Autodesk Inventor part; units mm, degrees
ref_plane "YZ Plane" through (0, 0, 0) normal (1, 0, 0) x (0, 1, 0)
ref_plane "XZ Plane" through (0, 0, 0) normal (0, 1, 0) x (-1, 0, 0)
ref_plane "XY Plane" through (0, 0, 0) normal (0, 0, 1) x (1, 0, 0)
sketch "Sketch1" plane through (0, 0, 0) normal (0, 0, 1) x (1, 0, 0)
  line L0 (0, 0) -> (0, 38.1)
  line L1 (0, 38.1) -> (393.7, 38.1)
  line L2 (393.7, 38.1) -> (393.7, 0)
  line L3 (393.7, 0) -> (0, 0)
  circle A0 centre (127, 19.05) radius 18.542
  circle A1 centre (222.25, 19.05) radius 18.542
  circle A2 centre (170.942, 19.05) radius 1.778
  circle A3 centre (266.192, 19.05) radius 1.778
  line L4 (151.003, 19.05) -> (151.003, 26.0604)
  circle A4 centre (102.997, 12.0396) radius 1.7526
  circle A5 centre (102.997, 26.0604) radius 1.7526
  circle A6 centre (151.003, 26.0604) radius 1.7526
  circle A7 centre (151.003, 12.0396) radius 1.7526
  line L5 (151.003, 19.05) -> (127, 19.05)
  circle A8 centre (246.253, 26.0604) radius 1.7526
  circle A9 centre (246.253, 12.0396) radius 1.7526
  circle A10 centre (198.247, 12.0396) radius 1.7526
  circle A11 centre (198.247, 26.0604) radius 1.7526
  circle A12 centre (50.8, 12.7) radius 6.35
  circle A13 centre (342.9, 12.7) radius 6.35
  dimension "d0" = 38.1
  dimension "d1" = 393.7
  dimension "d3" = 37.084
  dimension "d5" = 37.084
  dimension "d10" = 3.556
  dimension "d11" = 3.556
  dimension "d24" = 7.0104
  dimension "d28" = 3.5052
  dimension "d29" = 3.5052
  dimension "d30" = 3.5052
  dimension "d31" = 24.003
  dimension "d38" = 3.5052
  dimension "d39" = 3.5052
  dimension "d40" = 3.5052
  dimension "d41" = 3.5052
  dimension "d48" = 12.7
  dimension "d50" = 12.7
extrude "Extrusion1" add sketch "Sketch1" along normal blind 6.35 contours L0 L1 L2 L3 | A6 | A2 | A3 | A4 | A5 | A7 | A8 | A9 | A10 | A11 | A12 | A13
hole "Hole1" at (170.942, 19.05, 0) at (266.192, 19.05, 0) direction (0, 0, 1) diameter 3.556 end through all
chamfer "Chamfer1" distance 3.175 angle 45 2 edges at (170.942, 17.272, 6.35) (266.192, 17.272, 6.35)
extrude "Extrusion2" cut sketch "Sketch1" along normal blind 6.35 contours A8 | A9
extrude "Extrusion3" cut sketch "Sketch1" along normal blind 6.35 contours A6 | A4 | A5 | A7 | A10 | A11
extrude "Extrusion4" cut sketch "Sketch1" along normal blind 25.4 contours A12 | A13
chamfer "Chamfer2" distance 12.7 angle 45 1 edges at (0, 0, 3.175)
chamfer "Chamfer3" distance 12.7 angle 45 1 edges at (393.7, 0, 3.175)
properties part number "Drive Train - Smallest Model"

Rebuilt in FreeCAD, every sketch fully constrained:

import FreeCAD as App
import Part
import Sketcher
from FreeCAD import Vector
Q = App.Units.Quantity


def edges_at(feature, points):
    """Names of the edges that pass closest to the given points."""
    edges = feature.Shape.Edges
    near = lambda p: min(range(len(edges)), key=lambda i: edges[i].distToShape(Part.Vertex(*p))[0])
    return sorted({f"Edge{near(p) + 1}" for p in points})


def add_polygon(sketch, points):
    """Adds a closed chain of lines whose ends are joined by coincident constraints."""
    first, n = sketch.GeometryCount, len(points)
    for a, b in zip(points, points[1:] + points[:1]):
        sketch.addGeometry(Part.LineSegment(App.Vector(*a, 0), App.Vector(*b, 0)), False)
    for i in range(n):
        sketch.addConstraint(Sketcher.Constraint("Coincident", first + i, 2, first + (i + 1) % n, 1))

doc = App.newDocument("Part")
body = doc.addObject("PartDesign::Body", "Body")

# Sketch on XY plane
sketch1 = body.newObject("Sketcher::SketchObject", "Sketch")
sketch1.AttachmentSupport = (doc.getObject("XY_Plane"), [""])
sketch1.MapMode = "FlatFace"
add_polygon(sketch1, [(0, 38), (0, 0), (394, 0), (394, 38)])  # lines 0-3
sketch1.addGeometry(Part.Circle(Vector(127, 19, 0), Vector(0, 0, 1), 19), False)  # 4
sketch1.addGeometry(Part.Circle(Vector(222, 19, 0), Vector(0, 0, 1), 19), False)  # 5
sketch1.addConstraint(Sketcher.Constraint("Vertical", 0))
sketch1.addConstraint(Sketcher.Constraint("Horizontal", 1))
sketch1.addConstraint(Sketcher.Constraint("Vertical", 2))
sketch1.addConstraint(Sketcher.Constraint("Horizontal", 3))
sketch1.addConstraint(Sketcher.Constraint("Coincident", 0, 2, -1, 1))
sketch1.addConstraint(Sketcher.Constraint("Equal", 4, 5))
sketch1.addConstraint(Sketcher.Constraint("Horizontal", 4, 3, 5, 3))
sketch1.addConstraint(Sketcher.Constraint("Diameter", 4, Q("1.46 in")))
sketch1.addConstraint(Sketcher.Constraint("DistanceX", 1, 1, 1, 2, Q("15.5 in")))
sketch1.addConstraint(Sketcher.Constraint("DistanceY", 0, 2, 0, 1, Q("1.5 in")))
sketch1.addConstraint(Sketcher.Constraint("DistanceX", -1, 1, 4, 3, Q("5 in")))
sketch1.addConstraint(Sketcher.Constraint("DistanceY", -1, 1, 4, 3, Q("0.75 in")))
sketch1.addConstraint(Sketcher.Constraint("DistanceX", -1, 1, 5, 3, Q("8.75 in")))
pad1 = body.newObject("PartDesign::Pad", "Pad")
pad1.Profile = sketch1
pad1.Length = Q("0.25 in")

# Sketch on XY plane
sketch2 = body.newObject("Sketcher::SketchObject", "Sketch001")
sketch2.AttachmentSupport = (doc.getObject("XY_Plane"), [""])
sketch2.MapMode = "FlatFace"
sketch2.addGeometry(Part.Circle(Vector(170.9, 19.1, 0), Vector(0, 0, 1), 1.8), False)
sketch2.addGeometry(Part.Circle(Vector(266.2, 19.1, 0), Vector(0, 0, 1), 1.8), False)
sketch2.addConstraint(Sketcher.Constraint("Equal", 0, 1))
sketch2.addConstraint(Sketcher.Constraint("Horizontal", 0, 3, 1, 3))
sketch2.addConstraint(Sketcher.Constraint("Diameter", 0, Q("0.14 in")))
sketch2.addConstraint(Sketcher.Constraint("DistanceX", -1, 1, 0, 3, Q("6.73 in")))
sketch2.addConstraint(Sketcher.Constraint("DistanceY", -1, 1, 0, 3, Q("0.75 in")))
sketch2.addConstraint(Sketcher.Constraint("DistanceX", -1, 1, 1, 3, Q("10.48 in")))
doc.recompute()
hole = body.newObject("PartDesign::Hole", "Hole")
hole.Profile = sketch2
hole.ThreadType = "None"
hole.Diameter = Q("0.14 in")
hole.DepthType = "ThroughAll"
hole.Reversed = True
doc.recompute()

chamfer = body.newObject("PartDesign::Chamfer", "Chamfer")
chamfer.Base = (hole, edges_at(hole, [(170.942, 17.272, 6.35), (266.192, 17.272, 6.35)]))
chamfer.Size = Q("0.125 in")

# Sketch on XY plane
sketch3 = body.newObject("Sketcher::SketchObject", "Sketch002")
sketch3.AttachmentSupport = (doc.getObject("XY_Plane"), [""])
sketch3.MapMode = "FlatFace"
sketch3.addGeometry(Part.Circle(Vector(246.3, 26.1, 0), Vector(0, 0, 1), 1.8), False)
sketch3.addGeometry(Part.Circle(Vector(246.3, 12, 0), Vector(0, 0, 1), 1.8), False)
sketch3.addConstraint(Sketcher.Constraint("Equal", 0, 1))
sketch3.addConstraint(Sketcher.Constraint("Vertical", 0, 3, 1, 3))
sketch3.addConstraint(Sketcher.Constraint("Diameter", 0, Q("0.138 in")))
sketch3.addConstraint(Sketcher.Constraint("DistanceX", -1, 1, 0, 3, Q("9.695 in")))
sketch3.addConstraint(Sketcher.Constraint("DistanceY", -1, 1, 0, 3, Q("1.026 in")))
sketch3.addConstraint(Sketcher.Constraint("DistanceY", -1, 1, 1, 3, Q("0.474 in")))
pocket1 = body.newObject("PartDesign::Pocket", "Pocket")
pocket1.Profile = sketch3
pocket1.Length = Q("0.25 in")
pocket1.Reversed = True

# Sketch on XY plane
sketch4 = body.newObject("Sketcher::SketchObject", "Sketch003")
sketch4.AttachmentSupport = (doc.getObject("XY_Plane"), [""])
sketch4.MapMode = "FlatFace"
sketch4.addGeometry(Part.Circle(Vector(151, 26.1, 0), Vector(0, 0, 1), 1.8), False)
sketch4.addGeometry(Part.Circle(Vector(103, 12, 0), Vector(0, 0, 1), 1.8), False)
sketch4.addGeometry(Part.Circle(Vector(103, 26.1, 0), Vector(0, 0, 1), 1.8), False)
sketch4.addGeometry(Part.Circle(Vector(151, 12, 0), Vector(0, 0, 1), 1.8), False)
sketch4.addGeometry(Part.Circle(Vector(198.2, 12, 0), Vector(0, 0, 1), 1.8), False)
sketch4.addGeometry(Part.Circle(Vector(198.2, 26.1, 0), Vector(0, 0, 1), 1.8), False)
sketch4.addConstraint(Sketcher.Constraint("Equal", 0, 1))
sketch4.addConstraint(Sketcher.Constraint("Equal", 1, 2))
sketch4.addConstraint(Sketcher.Constraint("Equal", 2, 3))
sketch4.addConstraint(Sketcher.Constraint("Equal", 3, 4))
sketch4.addConstraint(Sketcher.Constraint("Equal", 4, 5))
sketch4.addConstraint(Sketcher.Constraint("Horizontal", 0, 3, 2, 3))
sketch4.addConstraint(Sketcher.Constraint("Horizontal", 1, 3, 3, 3))
sketch4.addConstraint(Sketcher.Constraint("Horizontal", 3, 3, 4, 3))
sketch4.addConstraint(Sketcher.Constraint("Horizontal", 2, 3, 5, 3))
sketch4.addConstraint(Sketcher.Constraint("Vertical", 1, 3, 2, 3))
sketch4.addConstraint(Sketcher.Constraint("Vertical", 0, 3, 3, 3))
sketch4.addConstraint(Sketcher.Constraint("Vertical", 4, 3, 5, 3))
sketch4.addConstraint(Sketcher.Constraint("Diameter", 0, Q("0.138 in")))
sketch4.addConstraint(Sketcher.Constraint("DistanceX", 1, 3, 0, 3, Q("1.89 in")))
sketch4.addConstraint(Sketcher.Constraint("DistanceX", 3, 3, 4, 3, Q("1.86 in")))
sketch4.addConstraint(Sketcher.Constraint("DistanceX", -1, 1, 0, 3, Q("5.945 in")))
sketch4.addConstraint(Sketcher.Constraint("DistanceY", -1, 1, 0, 3, Q("1.026 in")))
sketch4.addConstraint(Sketcher.Constraint("DistanceY", -1, 1, 1, 3, Q("0.474 in")))
pocket2 = body.newObject("PartDesign::Pocket", "Pocket001")
pocket2.Profile = sketch4
pocket2.Length = Q("0.25 in")
pocket2.Reversed = True

# Sketch on XY plane
sketch5 = body.newObject("Sketcher::SketchObject", "Sketch004")
sketch5.AttachmentSupport = (doc.getObject("XY_Plane"), [""])
sketch5.MapMode = "FlatFace"
sketch5.addGeometry(Part.Circle(Vector(51, 13, 0), Vector(0, 0, 1), 6), False)
sketch5.addGeometry(Part.Circle(Vector(343, 13, 0), Vector(0, 0, 1), 6), False)
sketch5.addConstraint(Sketcher.Constraint("Equal", 0, 1))
sketch5.addConstraint(Sketcher.Constraint("Horizontal", 0, 3, 1, 3))
sketch5.addConstraint(Sketcher.Constraint("Diameter", 0, Q("0.5 in")))
sketch5.addConstraint(Sketcher.Constraint("DistanceY", -1, 1, 0, 3, Q("0.5 in")))
sketch5.addConstraint(Sketcher.Constraint("DistanceX", -1, 1, 0, 3, Q("2 in")))
sketch5.addConstraint(Sketcher.Constraint("DistanceX", -1, 1, 1, 3, Q("13.5 in")))
pocket3 = body.newObject("PartDesign::Pocket", "Pocket002")
pocket3.Profile = sketch5
pocket3.Length = Q("1 in")
pocket3.Reversed = True
doc.recompute()

chamfer2 = body.newObject("PartDesign::Chamfer", "Chamfer001")
chamfer2.Base = (pocket3, edges_at(pocket3, [(0, 0, 3.175)]))
chamfer2.Size = Q("0.5 in")
doc.recompute()

chamfer3 = body.newObject("PartDesign::Chamfer", "Chamfer002")
chamfer3.Base = (chamfer2, edges_at(chamfer2, [(393.7, 0, 3.175)]))
chamfer3.Size = Q("0.5 in")

doc.recompute()
